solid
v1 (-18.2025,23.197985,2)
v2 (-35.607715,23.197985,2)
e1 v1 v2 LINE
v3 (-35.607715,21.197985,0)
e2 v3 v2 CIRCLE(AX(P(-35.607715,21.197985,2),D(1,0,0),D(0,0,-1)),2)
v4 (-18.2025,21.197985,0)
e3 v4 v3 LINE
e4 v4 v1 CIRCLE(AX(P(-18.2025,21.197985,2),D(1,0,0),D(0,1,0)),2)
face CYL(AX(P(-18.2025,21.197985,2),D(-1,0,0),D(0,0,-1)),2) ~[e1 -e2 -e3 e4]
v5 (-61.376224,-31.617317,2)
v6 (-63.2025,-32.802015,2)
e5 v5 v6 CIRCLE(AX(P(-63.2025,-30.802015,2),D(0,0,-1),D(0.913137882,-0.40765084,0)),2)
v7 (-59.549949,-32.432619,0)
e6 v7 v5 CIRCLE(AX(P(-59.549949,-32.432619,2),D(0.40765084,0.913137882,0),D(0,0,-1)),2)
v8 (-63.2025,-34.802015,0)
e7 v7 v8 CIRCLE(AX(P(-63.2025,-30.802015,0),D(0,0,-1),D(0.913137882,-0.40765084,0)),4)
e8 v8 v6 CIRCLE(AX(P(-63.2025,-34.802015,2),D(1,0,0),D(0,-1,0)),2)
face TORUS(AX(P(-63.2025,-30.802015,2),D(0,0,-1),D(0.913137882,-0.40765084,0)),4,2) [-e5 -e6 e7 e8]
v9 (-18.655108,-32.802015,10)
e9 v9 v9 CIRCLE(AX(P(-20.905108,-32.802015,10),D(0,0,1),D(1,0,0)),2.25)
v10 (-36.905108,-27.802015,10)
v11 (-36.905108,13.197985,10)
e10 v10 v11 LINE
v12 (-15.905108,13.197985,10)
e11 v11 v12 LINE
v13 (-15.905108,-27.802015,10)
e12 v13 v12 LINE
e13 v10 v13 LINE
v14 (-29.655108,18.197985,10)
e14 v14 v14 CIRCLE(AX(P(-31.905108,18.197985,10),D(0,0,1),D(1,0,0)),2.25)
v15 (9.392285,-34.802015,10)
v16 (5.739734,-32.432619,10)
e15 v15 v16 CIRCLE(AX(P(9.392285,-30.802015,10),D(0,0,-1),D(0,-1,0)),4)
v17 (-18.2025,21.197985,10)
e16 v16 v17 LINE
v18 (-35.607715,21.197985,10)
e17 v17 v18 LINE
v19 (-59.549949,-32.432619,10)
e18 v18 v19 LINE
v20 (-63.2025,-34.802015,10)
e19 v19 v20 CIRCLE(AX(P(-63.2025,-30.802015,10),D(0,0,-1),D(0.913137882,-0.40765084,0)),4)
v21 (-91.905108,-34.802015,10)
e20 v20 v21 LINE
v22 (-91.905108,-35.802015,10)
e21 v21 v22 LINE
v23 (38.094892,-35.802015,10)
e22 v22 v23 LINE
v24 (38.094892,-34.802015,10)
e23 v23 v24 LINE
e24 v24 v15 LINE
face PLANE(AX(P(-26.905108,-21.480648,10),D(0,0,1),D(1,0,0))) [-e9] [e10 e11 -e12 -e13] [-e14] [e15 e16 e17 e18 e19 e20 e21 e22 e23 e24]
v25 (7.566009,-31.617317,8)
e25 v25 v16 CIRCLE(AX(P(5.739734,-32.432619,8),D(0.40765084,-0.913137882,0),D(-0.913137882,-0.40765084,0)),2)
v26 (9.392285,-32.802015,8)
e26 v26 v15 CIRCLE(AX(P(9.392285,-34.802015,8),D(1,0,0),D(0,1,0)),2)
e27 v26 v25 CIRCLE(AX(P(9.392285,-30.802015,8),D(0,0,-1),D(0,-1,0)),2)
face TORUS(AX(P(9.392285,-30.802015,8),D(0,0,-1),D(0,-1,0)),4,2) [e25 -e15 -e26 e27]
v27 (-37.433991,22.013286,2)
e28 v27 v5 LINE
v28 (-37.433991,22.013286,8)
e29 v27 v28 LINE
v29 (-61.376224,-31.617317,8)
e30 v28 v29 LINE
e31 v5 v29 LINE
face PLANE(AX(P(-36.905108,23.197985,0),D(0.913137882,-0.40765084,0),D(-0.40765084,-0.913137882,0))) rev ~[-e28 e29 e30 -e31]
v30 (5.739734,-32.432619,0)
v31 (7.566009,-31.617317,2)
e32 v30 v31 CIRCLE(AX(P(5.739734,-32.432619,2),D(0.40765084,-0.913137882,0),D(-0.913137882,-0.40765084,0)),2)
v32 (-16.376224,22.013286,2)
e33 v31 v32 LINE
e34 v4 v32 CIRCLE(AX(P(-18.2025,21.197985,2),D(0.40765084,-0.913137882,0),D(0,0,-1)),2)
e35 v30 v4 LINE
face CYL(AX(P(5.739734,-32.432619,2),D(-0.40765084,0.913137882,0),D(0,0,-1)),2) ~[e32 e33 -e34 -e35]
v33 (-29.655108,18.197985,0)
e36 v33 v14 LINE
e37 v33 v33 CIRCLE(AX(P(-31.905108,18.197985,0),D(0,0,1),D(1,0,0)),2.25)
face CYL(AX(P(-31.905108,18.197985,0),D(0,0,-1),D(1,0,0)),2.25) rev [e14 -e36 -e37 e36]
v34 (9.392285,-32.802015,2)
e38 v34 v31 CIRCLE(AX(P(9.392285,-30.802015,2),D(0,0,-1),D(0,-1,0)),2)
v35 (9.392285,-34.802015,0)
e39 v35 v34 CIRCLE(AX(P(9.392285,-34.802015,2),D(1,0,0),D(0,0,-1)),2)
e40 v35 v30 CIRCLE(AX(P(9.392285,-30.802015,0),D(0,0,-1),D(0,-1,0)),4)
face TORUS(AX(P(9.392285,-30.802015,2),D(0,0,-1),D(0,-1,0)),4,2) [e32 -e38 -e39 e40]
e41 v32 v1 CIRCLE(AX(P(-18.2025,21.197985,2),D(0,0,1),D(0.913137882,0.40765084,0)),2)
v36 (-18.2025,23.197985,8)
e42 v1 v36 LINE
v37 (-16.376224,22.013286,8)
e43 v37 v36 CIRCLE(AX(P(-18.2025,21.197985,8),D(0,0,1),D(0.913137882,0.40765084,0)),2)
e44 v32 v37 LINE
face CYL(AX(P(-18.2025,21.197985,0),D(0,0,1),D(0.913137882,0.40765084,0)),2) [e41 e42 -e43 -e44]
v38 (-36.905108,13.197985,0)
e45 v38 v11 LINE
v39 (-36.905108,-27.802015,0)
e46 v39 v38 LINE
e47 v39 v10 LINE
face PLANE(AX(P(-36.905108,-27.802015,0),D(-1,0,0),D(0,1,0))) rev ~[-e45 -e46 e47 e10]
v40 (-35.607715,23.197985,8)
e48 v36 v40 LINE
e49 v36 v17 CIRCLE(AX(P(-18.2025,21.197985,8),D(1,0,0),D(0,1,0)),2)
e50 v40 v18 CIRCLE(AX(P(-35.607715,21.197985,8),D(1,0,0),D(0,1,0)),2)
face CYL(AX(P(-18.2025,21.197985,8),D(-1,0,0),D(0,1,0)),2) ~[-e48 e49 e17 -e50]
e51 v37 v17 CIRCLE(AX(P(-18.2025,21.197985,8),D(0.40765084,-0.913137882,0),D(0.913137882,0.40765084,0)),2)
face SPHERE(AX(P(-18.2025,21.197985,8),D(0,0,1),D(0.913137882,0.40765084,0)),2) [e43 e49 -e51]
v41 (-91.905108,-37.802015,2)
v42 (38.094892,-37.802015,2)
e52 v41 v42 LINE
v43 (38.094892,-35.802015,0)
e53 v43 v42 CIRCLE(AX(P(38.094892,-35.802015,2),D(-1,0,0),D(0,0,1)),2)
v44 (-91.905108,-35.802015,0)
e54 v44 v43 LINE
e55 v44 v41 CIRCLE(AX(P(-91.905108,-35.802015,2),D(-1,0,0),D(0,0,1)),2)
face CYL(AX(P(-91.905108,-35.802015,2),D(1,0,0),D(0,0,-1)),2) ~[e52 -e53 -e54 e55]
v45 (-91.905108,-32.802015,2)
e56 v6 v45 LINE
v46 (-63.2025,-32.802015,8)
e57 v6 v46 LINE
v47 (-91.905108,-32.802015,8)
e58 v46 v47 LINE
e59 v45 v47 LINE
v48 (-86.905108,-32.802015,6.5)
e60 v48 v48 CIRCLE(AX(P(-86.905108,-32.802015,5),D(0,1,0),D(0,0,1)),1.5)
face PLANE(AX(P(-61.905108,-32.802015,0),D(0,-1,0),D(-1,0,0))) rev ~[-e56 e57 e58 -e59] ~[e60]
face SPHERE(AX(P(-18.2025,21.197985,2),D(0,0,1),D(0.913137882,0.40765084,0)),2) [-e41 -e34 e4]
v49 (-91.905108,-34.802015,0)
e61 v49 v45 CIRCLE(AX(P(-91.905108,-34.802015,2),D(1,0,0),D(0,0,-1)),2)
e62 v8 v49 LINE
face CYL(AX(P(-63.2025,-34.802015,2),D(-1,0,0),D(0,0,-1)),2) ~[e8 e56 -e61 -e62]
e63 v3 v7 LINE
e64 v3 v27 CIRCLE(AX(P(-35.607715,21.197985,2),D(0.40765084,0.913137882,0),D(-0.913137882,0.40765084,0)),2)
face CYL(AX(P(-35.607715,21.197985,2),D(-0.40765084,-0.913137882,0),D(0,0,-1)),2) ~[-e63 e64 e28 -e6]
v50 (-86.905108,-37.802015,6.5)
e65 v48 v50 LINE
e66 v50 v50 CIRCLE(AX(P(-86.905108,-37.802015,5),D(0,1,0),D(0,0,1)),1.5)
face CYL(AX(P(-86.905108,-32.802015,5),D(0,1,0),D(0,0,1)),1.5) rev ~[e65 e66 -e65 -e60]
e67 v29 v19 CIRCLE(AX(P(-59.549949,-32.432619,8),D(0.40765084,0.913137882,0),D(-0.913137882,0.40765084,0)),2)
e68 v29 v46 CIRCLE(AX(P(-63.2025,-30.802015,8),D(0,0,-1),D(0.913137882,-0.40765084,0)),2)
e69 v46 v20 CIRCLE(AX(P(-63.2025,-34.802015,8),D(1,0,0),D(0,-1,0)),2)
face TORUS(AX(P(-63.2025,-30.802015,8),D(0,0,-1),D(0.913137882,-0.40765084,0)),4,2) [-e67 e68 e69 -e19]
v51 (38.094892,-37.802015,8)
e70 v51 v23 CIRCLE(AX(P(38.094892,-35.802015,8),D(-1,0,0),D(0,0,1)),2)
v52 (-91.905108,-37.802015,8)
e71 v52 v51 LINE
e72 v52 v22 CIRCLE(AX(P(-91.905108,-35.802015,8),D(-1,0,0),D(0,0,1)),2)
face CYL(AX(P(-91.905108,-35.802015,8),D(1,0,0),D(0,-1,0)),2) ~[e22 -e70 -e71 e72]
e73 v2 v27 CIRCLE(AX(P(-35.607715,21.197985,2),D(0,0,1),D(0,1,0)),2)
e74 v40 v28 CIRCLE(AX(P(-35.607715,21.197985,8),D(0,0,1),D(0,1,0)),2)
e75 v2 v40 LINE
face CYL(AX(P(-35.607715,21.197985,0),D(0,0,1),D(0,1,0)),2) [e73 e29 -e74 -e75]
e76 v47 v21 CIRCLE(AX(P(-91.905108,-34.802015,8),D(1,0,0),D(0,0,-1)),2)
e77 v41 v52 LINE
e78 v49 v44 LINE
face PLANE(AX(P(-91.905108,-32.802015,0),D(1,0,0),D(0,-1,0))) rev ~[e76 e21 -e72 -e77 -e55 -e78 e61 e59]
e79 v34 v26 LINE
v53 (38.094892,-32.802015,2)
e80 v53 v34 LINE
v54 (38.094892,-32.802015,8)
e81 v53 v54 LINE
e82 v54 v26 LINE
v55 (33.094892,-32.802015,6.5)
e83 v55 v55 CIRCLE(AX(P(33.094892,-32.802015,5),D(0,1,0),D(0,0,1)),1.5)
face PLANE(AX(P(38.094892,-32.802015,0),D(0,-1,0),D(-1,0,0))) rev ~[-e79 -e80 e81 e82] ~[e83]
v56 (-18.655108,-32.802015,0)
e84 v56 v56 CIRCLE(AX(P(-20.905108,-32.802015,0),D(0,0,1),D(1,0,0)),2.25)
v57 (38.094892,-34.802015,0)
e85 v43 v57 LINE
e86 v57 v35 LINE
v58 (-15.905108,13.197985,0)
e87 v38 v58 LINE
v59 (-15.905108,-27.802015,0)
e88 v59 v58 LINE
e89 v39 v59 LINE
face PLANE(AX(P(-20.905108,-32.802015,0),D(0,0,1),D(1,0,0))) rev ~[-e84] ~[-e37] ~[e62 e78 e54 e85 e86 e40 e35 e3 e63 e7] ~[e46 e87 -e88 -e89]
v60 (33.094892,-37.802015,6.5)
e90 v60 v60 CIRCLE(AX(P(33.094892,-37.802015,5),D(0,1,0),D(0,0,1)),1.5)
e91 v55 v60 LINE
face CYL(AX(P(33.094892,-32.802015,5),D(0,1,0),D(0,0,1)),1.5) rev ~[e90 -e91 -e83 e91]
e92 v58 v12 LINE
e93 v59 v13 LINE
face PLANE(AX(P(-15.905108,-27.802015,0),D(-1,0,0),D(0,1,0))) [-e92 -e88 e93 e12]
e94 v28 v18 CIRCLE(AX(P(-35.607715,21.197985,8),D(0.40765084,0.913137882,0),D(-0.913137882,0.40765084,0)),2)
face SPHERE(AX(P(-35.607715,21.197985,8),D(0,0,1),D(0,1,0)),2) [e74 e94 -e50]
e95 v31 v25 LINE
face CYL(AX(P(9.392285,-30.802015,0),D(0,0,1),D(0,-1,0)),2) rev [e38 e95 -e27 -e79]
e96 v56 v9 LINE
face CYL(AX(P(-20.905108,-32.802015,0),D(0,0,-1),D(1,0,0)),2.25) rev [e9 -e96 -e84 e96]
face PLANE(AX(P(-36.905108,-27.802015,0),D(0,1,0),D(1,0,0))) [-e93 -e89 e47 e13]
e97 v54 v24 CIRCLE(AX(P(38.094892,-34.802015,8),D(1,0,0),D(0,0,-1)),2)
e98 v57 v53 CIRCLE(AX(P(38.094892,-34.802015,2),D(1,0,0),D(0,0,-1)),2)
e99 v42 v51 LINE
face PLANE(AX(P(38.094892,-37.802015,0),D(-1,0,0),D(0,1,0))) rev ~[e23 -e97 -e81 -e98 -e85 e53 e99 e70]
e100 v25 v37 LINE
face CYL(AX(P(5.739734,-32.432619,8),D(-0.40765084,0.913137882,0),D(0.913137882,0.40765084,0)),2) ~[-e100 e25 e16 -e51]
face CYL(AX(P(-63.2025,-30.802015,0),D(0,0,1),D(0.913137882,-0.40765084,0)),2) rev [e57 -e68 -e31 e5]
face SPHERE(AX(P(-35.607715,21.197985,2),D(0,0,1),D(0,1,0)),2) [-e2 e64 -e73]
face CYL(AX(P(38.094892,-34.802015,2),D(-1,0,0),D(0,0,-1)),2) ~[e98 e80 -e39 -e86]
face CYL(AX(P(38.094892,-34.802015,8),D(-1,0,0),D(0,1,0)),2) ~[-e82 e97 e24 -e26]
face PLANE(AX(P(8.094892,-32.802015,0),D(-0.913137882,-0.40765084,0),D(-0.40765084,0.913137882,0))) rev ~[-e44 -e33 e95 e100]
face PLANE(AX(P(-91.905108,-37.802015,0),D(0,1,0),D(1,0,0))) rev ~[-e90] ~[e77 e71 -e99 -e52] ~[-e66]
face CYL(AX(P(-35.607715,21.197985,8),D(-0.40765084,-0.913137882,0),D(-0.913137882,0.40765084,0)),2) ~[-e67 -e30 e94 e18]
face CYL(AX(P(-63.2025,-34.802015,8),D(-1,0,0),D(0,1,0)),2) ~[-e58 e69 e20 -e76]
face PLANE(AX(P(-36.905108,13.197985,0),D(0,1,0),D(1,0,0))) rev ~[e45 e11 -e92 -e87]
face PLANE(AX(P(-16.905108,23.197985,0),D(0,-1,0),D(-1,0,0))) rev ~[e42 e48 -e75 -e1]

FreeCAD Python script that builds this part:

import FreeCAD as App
import Part
import Sketcher

V = App.Vector
Q = App.Units.Quantity


def edges_at(feature, points):
    """Names of the edges that pass closest to the given points."""
    edges = feature.Shape.Edges
    near = lambda p: min(range(len(edges)), key=lambda i: edges[i].distToShape(Part.Vertex(*p))[0])
    return sorted({f"Edge{near(p) + 1}" for p in points})


def add_polygon(sketch, points):
    """Adds a closed chain of lines whose ends are joined by coincident constraints."""
    first, n = sketch.GeometryCount, len(points)
    for a, b in zip(points, points[1:] + points[:1]):
        sketch.addGeometry(Part.LineSegment(App.Vector(*a, 0), App.Vector(*b, 0)), False)
    for i in range(n):
        sketch.addConstraint(Sketcher.Constraint("Coincident", first + i, 2, first + (i + 1) % n, 1))

doc = App.newDocument("Part")
body = doc.addObject("PartDesign::Body", "Body")

sketch1 = doc.addObject("Sketcher::SketchObject", "Sketch")
body.addObject(sketch1)
sketch1.AttachmentSupport = (doc.XY_Plane, [""])
sketch1.MapMode = "FlatFace"
add_polygon(sketch1, [(38, -33), (8, -33), (-17, 23), (-37, 23), (-62, -33), (-92, -33), (-92, -38), (38, -38)])
add_polygon(sketch1, [(-16, -28), (-37, -28), (-37, 13), (-16, 13)])
sketch1.addConstraint([
    Sketcher.Constraint("Horizontal", 0),
    Sketcher.Constraint("Horizontal", 2),
    Sketcher.Constraint("Horizontal", 4),
    Sketcher.Constraint("Vertical", 5),
    Sketcher.Constraint("Horizontal", 6),
    Sketcher.Constraint("Vertical", 7),
    Sketcher.Constraint("Horizontal", 8),
    Sketcher.Constraint("Vertical", 9),
    Sketcher.Constraint("Horizontal", 10),
    Sketcher.Constraint("Vertical", 11),
    Sketcher.Constraint("Horizontal", 0, 2, 3, 2),
    Sketcher.Constraint("Vertical", 2, 2, 8, 2),
    Sketcher.Constraint("Equal", 0, 4),
    Sketcher.Constraint("Equal", 1, 3),
    Sketcher.Constraint("DistanceX", 0, 2, 0, 1, Q("30 mm")),
    Sketcher.Constraint("DistanceX", 2, 2, 2, 1, Q("20 mm")),
    Sketcher.Constraint("DistanceX", 6, 1, 6, 2, Q("130 mm")),
    Sketcher.Constraint("DistanceX", 8, 2, 8, 1, Q("21 mm")),
    Sketcher.Constraint("DistanceY", 5, 2, 5, 1, Q("5 mm")),
    Sketcher.Constraint("DistanceY", 9, 1, 9, 2, Q("41 mm")),
    Sketcher.Constraint("DistanceY", 0, 2, 1, 2, Q("56 mm")),
    Sketcher.Constraint("DistanceY", 3, 2, 8, 2, Q("5 mm")),
    Sketcher.Constraint("DistanceX", -1, 1, 0, 2, Q("8.094892 mm")),
    Sketcher.Constraint("DistanceY", 0, 2, -1, 1, Q("32.802015 mm")),
])
pad1 = doc.addObject("PartDesign::Pad", "Pad")
body.addObject(pad1)
pad1.Profile = sketch1
pad1.Length = 10

sketch2 = doc.addObject("Sketcher::SketchObject", "Sketch001")
body.addObject(sketch2)
sketch2.AttachmentSupport = (doc.XY_Plane, [""])
sketch2.MapMode = "FlatFace"
sketch2.addGeometry([
    Part.Circle(V(-31.9, 18.2, 0), V(0, 0, 1), 2.2),
    Part.Circle(V(-20.9, -32.8, 0), V(0, 0, 1), 2.2),
], False)
sketch2.addConstraint([
    Sketcher.Constraint("Equal", 0, 1),
    Sketcher.Constraint("Diameter", 0, Q("4.5 mm")),
    Sketcher.Constraint("DistanceX", 0, 3, 1, 3, Q("11 mm")),
    Sketcher.Constraint("DistanceY", 1, 3, 0, 3, Q("51 mm")),
    Sketcher.Constraint("DistanceX", 0, 3, -1, 1, Q("31.905108 mm")),
    Sketcher.Constraint("DistanceY", -1, 1, 0, 3, Q("18.197985 mm")),
])
pocket1 = doc.addObject("PartDesign::Pocket", "Pocket")
body.addObject(pocket1)
pocket1.Profile = sketch2
pocket1.Length = 10
pocket1.Reversed = True

sketch3 = doc.addObject("Sketcher::SketchObject", "Sketch002")
body.addObject(sketch3)
sketch3.AttachmentSupport = (doc.XZ_Plane, [""])
sketch3.MapMode = "FlatFace"
sketch3.AttachmentOffset = App.Placement(V(0, 0, 32.802015), App.Rotation())
sketch3.addGeometry([
    Part.Circle(V(33.1, 5, 0), V(0, 0, 1), 1.5),
    Part.Circle(V(-86.9, 5, 0), V(0, 0, 1), 1.5),
], False)
sketch3.addConstraint([
    Sketcher.Constraint("Equal", 0, 1),
    Sketcher.Constraint("Horizontal", 0, 3, 1, 3),
    Sketcher.Constraint("Diameter", 0, Q("3 mm")),
    Sketcher.Constraint("DistanceY", -1, 1, 0, 3, Q("5 mm")),
    Sketcher.Constraint("DistanceX", 1, 3, 0, 3, Q("120 mm")),
    Sketcher.Constraint("DistanceX", -1, 1, 0, 3, Q("33.094892 mm")),
])
pocket2 = doc.addObject("PartDesign::Pocket", "Pocket001")
body.addObject(pocket2)
pocket2.Profile = sketch3
pocket2.Length = 5
pocket2.Reversed = True
doc.recompute()

fillet = doc.addObject("PartDesign::Fillet", "Fillet")
body.addObject(fillet)
fillet.Base = (pocket2, edges_at(pocket2, [
    (-61.905, -32.802, 5),
    (-36.905, 23.198, 5),
    (-16.905, 23.198, 5),
    (8.095, -32.802, 5),
]))
fillet.Radius = 2
doc.recompute()

fillet2 = doc.addObject("PartDesign::Fillet", "Fillet001")
body.addObject(fillet2)
fillet2.Base = (fillet, edges_at(fillet, [
    (-26.905, -37.802, 0),
    (23.744, -32.802, 0),
    (23.744, -32.802, 10),
    (-26.905, -37.802, 10),
    (-77.554, -32.802, 0),
    (-77.554, -32.802, 10),
    (-49.405, -4.802, 0),
    (-49.405, -4.802, 10),
    (-4.405, -4.802, 0),
    (-4.405, -4.802, 10),
    (-26.905, 23.198, 0),
    (-17.114, 22.876, 0),
    (-36.696, 22.876, 0),
    (-26.905, 23.198, 10),
    (-17.114, 22.876, 10),
    (-36.696, 22.876, 10),
    (-62.114, -32.48, 0),
    (-62.114, -32.48, 10),
    (8.304, -32.48, 0),
    (8.304, -32.48, 10),
]))
fillet2.Radius = 2

doc.recompute()
